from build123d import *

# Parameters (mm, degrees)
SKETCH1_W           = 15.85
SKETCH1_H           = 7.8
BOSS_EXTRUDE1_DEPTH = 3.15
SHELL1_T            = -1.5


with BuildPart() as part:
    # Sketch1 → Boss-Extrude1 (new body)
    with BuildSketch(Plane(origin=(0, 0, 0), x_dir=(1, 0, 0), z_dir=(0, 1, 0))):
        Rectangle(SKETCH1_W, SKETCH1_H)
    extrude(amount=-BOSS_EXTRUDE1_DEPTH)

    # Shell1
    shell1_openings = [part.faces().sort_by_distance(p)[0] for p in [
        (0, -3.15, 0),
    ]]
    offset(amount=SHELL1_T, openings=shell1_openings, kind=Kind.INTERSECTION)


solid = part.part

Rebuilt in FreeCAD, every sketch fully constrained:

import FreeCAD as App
import Part
import Sketcher
Q = App.Units.Quantity


def faces_at(feature, points):
    """Names of the faces that lie closest to the given points."""
    faces = feature.Shape.Faces
    near = lambda p: min(range(len(faces)), key=lambda i: faces[i].distToShape(Part.Vertex(*p))[0])
    return sorted({f"Face{near(p) + 1}" for p in points})

doc = App.newDocument("Part")
body = doc.addObject("PartDesign::Body", "Body")

# Sketch on XZ plane
sketch1 = doc.addObject("Sketcher::SketchObject", "Sketch")
body.addObject(sketch1)
sketch1.AttachmentSupport = (doc.XZ_Plane, [""])
sketch1.MapMode = "FlatFace"
sketch1.addGeometry([
    Part.LineSegment(App.Vector(-7.925, -3.9, 0), App.Vector(-7.925, 3.9, 0)),
    Part.LineSegment(App.Vector(-7.925, 3.9, 0), App.Vector(7.925, 3.9, 0)),
    Part.LineSegment(App.Vector(7.925, 3.9, 0), App.Vector(7.925, -3.9, 0)),
    Part.LineSegment(App.Vector(7.925, -3.9, 0), App.Vector(-7.925, -3.9, 0)),
], False)
sketch1.addConstraint([
    Sketcher.Constraint("Coincident", 0, 2, 1, 1),
    Sketcher.Constraint("Coincident", 1, 2, 2, 1),
    Sketcher.Constraint("Coincident", 2, 2, 3, 1),
    Sketcher.Constraint("Coincident", 3, 2, 0, 1),
    Sketcher.Constraint("Vertical", 0),
    Sketcher.Constraint("Horizontal", 1),
    Sketcher.Constraint("Vertical", 2),
    Sketcher.Constraint("Horizontal", 3),
    Sketcher.Constraint("Symmetric", 0, 2, 2, 2, -1, 1),
    Sketcher.Constraint("DistanceY", 0, 1, 0, 2, Q("7.8 mm")),
    Sketcher.Constraint("DistanceX", 1, 1, 1, 2, Q("15.85 mm")),
])
pad1 = doc.addObject("PartDesign::Pad", "Pad")
body.addObject(pad1)
pad1.Profile = sketch1
pad1.Length = 3.15
doc.recompute()

thickness = doc.addObject("PartDesign::Thickness", "Thickness")
body.addObject(thickness)
thickness.Base = (pad1, faces_at(pad1, [(0, -3.15, 0)]))
thickness.Value = 1.5
thickness.Reversed = True
thickness.Join = "Intersection"

doc.recompute()
